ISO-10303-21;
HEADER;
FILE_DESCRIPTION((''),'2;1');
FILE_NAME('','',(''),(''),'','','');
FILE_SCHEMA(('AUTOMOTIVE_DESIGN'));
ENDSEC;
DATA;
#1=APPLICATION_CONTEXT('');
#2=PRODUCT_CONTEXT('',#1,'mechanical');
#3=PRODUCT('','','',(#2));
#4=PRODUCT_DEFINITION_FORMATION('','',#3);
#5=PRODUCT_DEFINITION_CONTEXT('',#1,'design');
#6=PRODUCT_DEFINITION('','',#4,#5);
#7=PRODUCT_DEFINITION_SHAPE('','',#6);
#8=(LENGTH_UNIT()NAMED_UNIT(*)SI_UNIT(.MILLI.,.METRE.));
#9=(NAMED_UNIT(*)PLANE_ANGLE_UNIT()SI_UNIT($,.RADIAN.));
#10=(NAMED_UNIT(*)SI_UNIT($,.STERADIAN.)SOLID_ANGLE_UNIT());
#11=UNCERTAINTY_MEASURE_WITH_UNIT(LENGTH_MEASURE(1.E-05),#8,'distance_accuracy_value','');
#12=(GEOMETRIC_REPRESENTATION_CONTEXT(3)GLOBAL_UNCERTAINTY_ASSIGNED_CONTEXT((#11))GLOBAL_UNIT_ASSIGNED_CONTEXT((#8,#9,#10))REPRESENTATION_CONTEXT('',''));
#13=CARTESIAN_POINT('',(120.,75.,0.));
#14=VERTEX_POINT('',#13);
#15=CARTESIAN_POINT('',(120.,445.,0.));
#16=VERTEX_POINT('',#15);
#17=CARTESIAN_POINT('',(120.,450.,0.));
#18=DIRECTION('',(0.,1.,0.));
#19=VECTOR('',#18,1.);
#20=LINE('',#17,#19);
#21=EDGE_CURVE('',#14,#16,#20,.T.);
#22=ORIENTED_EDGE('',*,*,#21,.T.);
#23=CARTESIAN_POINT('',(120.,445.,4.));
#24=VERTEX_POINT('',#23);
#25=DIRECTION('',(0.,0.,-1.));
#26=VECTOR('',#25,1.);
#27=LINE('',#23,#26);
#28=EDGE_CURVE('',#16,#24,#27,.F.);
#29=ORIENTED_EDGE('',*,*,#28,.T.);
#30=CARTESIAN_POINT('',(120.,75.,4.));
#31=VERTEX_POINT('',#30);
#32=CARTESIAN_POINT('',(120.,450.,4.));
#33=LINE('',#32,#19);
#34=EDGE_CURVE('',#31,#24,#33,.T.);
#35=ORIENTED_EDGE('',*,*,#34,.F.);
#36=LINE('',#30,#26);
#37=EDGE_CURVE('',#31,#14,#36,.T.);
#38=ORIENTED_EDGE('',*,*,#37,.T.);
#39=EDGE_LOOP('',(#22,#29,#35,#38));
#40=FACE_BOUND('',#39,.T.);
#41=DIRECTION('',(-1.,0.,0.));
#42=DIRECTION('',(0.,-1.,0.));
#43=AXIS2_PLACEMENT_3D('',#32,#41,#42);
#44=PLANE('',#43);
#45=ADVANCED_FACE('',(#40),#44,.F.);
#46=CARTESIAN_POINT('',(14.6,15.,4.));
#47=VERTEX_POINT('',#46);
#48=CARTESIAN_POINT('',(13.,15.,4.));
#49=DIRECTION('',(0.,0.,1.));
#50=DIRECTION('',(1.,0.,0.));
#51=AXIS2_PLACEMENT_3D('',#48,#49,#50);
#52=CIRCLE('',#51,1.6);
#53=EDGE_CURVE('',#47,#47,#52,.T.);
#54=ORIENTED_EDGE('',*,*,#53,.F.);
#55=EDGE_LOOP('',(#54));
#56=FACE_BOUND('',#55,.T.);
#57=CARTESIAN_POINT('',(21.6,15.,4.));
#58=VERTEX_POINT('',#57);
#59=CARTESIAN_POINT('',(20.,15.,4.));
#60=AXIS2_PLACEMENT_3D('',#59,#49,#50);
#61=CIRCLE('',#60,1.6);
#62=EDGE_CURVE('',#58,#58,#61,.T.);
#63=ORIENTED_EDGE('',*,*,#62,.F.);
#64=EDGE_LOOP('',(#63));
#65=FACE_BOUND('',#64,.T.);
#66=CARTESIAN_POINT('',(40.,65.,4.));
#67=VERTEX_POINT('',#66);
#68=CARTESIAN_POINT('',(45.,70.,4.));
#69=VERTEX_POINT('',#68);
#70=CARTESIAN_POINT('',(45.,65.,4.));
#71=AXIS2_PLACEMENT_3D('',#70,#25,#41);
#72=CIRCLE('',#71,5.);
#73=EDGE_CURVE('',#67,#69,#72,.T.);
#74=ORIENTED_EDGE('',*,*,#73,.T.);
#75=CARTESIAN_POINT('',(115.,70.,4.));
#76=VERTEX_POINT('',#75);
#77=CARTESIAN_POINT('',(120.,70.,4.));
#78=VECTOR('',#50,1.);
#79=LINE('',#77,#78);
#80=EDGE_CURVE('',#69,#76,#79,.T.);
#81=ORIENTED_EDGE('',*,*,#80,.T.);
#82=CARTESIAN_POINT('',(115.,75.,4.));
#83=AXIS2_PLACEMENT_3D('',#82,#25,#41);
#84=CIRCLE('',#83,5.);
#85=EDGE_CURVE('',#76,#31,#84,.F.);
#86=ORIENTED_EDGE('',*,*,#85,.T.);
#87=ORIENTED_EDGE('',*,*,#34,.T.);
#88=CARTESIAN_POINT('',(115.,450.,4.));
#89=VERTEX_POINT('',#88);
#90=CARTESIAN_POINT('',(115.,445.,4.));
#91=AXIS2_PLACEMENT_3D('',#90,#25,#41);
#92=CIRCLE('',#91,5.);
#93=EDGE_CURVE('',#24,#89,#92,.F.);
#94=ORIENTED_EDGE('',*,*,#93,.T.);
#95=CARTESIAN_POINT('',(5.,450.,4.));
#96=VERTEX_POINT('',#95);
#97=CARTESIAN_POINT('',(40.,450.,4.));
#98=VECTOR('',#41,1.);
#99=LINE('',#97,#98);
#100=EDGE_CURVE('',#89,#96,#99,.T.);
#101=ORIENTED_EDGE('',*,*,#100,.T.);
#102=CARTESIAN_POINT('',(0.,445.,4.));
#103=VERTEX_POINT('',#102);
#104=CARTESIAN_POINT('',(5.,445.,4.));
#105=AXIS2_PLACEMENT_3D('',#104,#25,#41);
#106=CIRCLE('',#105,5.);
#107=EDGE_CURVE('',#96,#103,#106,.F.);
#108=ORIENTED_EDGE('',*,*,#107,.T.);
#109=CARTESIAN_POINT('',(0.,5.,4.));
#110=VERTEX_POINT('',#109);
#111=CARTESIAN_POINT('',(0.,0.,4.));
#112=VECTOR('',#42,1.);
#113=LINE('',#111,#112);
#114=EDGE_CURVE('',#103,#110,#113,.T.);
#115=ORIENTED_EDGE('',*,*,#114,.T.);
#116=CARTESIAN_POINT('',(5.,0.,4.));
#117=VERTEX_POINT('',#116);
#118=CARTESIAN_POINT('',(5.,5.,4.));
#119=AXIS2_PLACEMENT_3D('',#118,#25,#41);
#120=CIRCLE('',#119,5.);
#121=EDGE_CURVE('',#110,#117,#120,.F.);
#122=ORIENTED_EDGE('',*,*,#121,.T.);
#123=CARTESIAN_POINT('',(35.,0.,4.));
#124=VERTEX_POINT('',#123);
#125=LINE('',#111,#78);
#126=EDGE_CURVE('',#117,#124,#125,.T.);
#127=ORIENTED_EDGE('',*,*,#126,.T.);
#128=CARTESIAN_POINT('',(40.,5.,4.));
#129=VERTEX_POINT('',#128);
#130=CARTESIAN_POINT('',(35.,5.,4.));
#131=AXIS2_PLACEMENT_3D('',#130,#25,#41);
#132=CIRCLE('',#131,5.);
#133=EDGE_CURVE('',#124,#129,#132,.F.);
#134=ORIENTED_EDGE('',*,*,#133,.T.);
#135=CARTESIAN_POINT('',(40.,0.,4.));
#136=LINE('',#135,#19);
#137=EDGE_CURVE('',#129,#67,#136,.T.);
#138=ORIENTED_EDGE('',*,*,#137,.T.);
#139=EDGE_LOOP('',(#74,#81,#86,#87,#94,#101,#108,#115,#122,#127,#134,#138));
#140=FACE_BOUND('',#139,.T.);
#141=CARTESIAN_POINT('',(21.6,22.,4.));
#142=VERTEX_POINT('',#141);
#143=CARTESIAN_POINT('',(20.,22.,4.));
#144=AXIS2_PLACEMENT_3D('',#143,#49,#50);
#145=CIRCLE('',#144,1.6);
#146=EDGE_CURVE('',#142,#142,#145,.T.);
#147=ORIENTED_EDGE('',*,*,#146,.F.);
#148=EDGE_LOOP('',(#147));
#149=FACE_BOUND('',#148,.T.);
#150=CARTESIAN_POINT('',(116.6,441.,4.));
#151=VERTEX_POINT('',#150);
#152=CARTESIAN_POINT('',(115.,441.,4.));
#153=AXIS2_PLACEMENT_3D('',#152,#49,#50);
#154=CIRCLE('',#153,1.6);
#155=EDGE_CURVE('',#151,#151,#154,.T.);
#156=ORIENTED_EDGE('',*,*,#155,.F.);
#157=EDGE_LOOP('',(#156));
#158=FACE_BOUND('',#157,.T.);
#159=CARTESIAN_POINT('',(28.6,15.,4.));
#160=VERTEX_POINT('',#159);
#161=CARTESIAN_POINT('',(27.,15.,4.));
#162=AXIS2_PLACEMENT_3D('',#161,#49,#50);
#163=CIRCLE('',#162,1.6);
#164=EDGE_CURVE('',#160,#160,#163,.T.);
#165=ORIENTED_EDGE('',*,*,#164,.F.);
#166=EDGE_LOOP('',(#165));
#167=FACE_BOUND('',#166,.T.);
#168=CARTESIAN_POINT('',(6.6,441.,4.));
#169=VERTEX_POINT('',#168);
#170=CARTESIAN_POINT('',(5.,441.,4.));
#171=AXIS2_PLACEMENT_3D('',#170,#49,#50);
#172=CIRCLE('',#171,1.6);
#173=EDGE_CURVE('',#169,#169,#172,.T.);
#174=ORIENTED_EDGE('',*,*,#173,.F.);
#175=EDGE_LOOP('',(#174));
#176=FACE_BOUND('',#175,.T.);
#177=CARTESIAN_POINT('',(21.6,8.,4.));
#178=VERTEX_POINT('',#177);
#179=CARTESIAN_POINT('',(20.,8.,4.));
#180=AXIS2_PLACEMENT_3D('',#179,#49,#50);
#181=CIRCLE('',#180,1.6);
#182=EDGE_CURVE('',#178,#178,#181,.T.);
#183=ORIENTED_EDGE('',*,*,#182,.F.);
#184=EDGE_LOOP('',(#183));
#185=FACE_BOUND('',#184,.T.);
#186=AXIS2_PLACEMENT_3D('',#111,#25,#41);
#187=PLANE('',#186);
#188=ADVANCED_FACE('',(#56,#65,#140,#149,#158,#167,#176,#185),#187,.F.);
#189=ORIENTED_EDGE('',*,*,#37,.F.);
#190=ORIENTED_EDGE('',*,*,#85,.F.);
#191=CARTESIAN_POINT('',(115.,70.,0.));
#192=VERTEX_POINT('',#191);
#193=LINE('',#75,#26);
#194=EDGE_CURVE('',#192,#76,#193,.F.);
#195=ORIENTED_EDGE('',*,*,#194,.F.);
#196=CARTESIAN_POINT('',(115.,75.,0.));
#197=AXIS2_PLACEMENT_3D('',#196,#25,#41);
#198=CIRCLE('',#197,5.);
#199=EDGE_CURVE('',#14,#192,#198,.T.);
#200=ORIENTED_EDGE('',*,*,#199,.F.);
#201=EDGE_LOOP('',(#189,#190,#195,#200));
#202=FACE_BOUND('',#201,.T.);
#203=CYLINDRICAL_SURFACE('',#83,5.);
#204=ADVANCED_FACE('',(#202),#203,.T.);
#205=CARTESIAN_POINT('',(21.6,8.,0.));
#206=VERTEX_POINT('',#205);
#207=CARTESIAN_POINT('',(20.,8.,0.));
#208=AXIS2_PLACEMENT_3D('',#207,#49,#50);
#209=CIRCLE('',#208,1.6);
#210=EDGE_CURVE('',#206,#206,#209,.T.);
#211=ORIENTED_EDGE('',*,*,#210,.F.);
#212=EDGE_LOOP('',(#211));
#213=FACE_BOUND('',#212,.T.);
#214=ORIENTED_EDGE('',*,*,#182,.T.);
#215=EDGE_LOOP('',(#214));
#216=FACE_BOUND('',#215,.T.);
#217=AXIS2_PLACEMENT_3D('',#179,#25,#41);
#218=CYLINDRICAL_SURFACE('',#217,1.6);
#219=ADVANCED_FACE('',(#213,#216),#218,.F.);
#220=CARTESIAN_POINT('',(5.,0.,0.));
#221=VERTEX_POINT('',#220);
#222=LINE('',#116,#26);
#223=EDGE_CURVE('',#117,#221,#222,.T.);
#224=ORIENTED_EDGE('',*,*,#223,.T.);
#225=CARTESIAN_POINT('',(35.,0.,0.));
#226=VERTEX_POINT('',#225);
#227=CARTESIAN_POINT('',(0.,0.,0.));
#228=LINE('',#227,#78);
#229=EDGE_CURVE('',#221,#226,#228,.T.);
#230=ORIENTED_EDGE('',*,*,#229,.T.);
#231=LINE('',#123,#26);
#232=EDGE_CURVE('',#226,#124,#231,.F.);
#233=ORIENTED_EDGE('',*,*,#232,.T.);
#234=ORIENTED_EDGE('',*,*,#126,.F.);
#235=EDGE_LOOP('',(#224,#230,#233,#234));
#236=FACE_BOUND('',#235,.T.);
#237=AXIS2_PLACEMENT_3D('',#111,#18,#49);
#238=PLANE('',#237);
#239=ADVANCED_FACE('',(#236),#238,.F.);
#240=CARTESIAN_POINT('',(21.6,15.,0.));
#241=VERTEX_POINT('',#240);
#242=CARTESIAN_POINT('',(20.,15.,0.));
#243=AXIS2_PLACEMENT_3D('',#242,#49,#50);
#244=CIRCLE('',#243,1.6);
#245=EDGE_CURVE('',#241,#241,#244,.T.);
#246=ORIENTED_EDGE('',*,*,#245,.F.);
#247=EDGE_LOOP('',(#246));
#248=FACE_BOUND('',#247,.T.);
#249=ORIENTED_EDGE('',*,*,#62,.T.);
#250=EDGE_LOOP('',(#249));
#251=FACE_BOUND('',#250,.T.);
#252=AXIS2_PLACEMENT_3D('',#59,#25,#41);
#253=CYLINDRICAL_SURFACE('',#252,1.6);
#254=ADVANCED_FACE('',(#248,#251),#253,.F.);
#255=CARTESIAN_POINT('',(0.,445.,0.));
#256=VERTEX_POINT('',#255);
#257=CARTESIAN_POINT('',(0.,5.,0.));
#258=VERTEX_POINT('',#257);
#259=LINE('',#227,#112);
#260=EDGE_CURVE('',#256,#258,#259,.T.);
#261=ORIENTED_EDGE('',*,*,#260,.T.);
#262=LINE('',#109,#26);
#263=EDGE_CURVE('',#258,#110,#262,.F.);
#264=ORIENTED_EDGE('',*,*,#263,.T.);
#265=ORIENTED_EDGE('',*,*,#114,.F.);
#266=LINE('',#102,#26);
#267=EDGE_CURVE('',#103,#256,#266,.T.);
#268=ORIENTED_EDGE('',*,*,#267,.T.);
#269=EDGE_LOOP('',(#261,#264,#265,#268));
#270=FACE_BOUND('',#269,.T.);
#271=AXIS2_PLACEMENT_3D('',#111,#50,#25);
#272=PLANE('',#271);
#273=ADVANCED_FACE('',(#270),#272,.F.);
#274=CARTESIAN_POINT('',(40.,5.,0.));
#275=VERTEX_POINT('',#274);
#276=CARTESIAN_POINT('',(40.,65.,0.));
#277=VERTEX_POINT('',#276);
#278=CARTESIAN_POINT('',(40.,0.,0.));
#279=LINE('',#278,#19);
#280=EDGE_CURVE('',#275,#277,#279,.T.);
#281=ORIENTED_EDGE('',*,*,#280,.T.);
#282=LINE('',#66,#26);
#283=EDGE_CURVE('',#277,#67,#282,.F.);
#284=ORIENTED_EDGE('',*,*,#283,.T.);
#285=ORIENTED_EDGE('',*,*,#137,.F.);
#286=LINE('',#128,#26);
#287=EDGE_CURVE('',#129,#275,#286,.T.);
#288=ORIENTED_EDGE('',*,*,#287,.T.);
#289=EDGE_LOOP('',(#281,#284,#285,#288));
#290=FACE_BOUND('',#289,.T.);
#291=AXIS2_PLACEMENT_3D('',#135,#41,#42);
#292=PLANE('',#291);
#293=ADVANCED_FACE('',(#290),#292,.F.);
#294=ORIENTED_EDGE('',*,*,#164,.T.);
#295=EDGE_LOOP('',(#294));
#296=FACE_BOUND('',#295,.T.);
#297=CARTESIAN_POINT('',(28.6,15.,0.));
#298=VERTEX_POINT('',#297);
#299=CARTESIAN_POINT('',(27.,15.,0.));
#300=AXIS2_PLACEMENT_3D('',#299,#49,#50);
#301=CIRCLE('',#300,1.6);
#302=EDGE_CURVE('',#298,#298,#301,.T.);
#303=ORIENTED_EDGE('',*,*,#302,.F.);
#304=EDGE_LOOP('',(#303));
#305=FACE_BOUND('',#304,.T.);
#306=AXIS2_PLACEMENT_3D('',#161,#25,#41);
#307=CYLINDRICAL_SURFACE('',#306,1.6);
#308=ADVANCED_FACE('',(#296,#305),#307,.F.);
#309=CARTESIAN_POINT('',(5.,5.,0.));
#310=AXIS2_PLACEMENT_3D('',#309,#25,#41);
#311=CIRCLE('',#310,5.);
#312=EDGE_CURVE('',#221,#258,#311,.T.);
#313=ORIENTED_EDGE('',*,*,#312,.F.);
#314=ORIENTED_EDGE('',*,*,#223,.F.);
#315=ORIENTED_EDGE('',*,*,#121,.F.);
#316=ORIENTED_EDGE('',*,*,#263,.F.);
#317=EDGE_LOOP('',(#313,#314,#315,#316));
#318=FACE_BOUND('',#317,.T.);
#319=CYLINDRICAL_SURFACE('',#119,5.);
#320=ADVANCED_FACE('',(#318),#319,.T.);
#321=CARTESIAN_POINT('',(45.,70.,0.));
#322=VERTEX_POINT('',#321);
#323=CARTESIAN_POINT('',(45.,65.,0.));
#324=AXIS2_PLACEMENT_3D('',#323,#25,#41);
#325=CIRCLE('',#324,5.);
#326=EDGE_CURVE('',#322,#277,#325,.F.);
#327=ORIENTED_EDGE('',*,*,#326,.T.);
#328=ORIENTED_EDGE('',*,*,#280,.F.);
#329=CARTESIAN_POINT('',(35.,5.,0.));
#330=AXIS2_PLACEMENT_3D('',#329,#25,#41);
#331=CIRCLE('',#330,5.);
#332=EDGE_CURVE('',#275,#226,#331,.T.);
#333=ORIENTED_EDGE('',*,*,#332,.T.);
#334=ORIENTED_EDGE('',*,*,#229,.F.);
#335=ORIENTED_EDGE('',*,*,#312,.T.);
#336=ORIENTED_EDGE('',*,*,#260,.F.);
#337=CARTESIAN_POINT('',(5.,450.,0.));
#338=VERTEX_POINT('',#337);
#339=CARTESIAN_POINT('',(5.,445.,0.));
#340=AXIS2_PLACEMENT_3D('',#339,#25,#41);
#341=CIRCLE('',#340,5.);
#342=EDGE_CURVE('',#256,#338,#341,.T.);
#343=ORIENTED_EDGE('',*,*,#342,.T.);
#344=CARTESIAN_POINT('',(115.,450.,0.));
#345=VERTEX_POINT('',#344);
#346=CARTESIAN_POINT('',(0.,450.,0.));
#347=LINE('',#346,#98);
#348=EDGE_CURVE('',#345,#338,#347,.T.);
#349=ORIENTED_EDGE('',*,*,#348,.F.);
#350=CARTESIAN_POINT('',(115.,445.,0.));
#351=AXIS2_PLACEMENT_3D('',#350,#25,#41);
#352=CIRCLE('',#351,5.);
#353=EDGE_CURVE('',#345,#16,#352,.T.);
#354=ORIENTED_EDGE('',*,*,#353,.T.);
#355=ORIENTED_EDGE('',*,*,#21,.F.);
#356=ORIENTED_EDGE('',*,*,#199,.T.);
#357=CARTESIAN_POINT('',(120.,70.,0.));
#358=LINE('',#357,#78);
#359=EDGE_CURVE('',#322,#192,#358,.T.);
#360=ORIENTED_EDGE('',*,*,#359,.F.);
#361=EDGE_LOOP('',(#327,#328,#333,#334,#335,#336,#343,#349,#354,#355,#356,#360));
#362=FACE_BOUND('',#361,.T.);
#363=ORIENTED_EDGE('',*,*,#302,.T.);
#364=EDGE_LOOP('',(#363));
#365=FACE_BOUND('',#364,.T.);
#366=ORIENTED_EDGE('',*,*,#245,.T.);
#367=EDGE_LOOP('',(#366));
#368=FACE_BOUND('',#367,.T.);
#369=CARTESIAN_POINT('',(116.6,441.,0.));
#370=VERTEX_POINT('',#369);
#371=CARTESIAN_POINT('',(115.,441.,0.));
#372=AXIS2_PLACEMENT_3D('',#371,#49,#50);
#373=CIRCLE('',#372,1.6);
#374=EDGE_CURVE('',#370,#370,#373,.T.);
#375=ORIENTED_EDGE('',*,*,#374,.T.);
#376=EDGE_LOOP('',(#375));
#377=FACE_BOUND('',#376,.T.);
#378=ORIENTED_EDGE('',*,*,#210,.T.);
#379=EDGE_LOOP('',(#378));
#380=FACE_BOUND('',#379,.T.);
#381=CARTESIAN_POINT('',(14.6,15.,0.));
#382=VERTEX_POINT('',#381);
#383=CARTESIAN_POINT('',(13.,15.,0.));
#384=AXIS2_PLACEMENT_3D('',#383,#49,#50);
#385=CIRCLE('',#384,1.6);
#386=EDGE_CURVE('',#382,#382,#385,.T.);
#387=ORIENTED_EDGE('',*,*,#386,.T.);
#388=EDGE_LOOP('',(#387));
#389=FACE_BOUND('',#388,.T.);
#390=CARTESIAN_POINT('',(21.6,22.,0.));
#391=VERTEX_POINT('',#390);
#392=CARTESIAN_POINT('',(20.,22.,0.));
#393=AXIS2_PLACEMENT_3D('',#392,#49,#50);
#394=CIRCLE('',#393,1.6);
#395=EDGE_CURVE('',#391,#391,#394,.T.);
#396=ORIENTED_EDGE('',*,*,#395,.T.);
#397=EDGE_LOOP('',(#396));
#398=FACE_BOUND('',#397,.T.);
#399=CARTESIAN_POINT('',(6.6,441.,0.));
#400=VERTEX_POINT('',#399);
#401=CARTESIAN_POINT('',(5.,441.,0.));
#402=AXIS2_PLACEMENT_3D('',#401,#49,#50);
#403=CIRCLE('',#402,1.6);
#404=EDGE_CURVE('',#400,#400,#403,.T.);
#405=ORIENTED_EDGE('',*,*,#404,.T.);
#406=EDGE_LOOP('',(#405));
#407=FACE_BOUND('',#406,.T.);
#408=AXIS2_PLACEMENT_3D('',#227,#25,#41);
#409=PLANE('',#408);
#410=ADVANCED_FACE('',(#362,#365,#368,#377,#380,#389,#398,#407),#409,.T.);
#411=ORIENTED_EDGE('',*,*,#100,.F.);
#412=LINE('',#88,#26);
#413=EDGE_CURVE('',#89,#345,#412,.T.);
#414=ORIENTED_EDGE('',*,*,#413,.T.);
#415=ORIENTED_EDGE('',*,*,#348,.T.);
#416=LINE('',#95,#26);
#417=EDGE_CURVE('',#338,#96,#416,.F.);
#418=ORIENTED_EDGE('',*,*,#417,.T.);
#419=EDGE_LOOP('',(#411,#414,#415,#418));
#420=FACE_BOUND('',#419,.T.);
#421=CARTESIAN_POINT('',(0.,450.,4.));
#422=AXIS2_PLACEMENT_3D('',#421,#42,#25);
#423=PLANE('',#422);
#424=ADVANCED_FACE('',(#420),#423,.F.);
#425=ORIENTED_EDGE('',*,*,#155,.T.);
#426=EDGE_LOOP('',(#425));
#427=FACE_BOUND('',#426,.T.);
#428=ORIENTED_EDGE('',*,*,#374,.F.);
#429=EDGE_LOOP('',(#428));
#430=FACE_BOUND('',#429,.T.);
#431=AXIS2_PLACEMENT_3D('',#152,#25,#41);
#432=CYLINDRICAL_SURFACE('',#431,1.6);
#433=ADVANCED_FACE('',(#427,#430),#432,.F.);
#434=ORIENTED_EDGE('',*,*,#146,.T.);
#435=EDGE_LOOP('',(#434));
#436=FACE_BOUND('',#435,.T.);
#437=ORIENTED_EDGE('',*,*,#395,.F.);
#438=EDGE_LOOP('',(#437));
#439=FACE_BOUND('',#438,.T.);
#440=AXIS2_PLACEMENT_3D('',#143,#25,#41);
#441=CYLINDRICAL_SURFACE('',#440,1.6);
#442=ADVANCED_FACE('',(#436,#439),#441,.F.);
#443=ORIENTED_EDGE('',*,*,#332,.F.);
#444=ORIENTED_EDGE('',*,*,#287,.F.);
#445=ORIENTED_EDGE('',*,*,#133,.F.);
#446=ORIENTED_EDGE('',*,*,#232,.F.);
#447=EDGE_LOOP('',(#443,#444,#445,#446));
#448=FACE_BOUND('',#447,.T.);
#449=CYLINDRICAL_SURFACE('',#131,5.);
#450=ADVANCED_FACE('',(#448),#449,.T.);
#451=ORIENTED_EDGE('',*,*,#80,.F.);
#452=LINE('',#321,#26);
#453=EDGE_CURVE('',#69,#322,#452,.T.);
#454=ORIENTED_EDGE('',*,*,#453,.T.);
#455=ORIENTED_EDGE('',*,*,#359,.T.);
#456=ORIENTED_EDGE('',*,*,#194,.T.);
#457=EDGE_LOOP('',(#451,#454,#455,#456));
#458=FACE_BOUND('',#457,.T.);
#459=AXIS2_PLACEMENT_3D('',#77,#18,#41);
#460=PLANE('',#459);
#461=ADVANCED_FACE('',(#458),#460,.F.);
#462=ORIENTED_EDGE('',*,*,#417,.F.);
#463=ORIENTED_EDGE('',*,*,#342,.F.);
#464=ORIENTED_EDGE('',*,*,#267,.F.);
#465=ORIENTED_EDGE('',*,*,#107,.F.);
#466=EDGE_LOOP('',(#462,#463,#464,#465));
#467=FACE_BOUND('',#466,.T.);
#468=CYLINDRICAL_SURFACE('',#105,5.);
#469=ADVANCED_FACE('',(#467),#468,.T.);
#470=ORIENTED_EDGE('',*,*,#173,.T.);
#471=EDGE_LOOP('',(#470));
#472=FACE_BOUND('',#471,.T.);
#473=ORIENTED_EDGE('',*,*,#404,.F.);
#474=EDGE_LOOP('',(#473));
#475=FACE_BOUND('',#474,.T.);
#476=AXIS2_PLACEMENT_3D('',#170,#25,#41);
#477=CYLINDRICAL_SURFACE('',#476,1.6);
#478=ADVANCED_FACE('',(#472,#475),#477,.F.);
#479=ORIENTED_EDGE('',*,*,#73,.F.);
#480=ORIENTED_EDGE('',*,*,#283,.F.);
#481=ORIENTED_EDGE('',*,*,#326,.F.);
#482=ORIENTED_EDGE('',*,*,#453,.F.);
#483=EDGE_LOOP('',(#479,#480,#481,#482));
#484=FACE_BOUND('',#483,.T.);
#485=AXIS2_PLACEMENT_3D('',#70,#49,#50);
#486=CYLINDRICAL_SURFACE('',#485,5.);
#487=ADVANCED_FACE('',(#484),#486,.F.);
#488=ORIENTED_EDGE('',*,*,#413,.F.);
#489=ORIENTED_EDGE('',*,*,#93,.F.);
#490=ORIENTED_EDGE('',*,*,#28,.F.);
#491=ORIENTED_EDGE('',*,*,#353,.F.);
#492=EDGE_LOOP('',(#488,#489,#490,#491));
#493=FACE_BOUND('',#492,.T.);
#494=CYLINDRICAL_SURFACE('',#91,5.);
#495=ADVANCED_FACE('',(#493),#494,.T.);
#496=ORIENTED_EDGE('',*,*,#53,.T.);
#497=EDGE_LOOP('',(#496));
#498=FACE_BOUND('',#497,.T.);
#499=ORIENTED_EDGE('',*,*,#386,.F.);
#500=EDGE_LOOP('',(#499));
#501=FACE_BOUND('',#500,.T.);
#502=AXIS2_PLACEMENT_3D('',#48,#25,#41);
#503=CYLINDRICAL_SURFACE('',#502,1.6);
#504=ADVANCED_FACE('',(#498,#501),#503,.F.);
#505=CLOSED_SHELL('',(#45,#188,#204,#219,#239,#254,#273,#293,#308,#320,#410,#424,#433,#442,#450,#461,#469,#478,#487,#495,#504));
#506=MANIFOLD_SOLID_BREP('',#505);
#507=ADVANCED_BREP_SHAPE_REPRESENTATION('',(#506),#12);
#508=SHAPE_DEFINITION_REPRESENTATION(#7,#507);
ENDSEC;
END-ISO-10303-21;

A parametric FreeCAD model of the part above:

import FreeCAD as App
import Part
import Sketcher


def edges_at(feature, points):
    """Names of the edges that pass closest to the given points."""
    edges = feature.Shape.Edges
    near = lambda p: min(range(len(edges)), key=lambda i: edges[i].distToShape(Part.Vertex(*p))[0])
    return sorted({f"Edge{near(p) + 1}" for p in points})


def add_polygon(sketch, points):
    """Adds a closed chain of lines whose ends are joined by coincident constraints."""
    first, n = sketch.GeometryCount, len(points)
    for a, b in zip(points, points[1:] + points[:1]):
        sketch.addGeometry(Part.LineSegment(App.Vector(*a, 0), App.Vector(*b, 0)), False)
    for i in range(n):
        sketch.addConstraint(Sketcher.Constraint("Coincident", first + i, 2, first + (i + 1) % n, 1))

doc = App.newDocument("Part")
body = doc.addObject("PartDesign::Body", "Body")

# Sketch on XY plane
sketch1 = body.newObject("Sketcher::SketchObject", "Sketch")
sketch1.AttachmentSupport = (doc.getObject("XY_Plane"), [""])
sketch1.MapMode = "FlatFace"
add_polygon(sketch1, [(0, 0), (40, 0), (40, 70), (120, 70), (120, 450), (0, 450)])  # lines 0-5
sketch1.addGeometry(Part.Circle(App.Vector(13, 15, 0), App.Vector(0, 0, 1), 1.6), False)  # 6
sketch1.addGeometry(Part.Circle(App.Vector(20, 8, 0), App.Vector(0, 0, 1), 1.6), False)  # 7
sketch1.addGeometry(Part.Circle(App.Vector(20, 15, 0), App.Vector(0, 0, 1), 1.6), False)  # 8
sketch1.addGeometry(Part.Circle(App.Vector(20, 22, 0), App.Vector(0, 0, 1), 1.6), False)  # 9
sketch1.addGeometry(Part.Circle(App.Vector(27, 15, 0), App.Vector(0, 0, 1), 1.6), False)  # 10
sketch1.addGeometry(Part.Circle(App.Vector(5, 441, 0), App.Vector(0, 0, 1), 1.6), False)  # 11
sketch1.addGeometry(Part.Circle(App.Vector(115, 441, 0), App.Vector(0, 0, 1), 1.6), False)  # 12
sketch1.addConstraint([
    Sketcher.Constraint("Horizontal", 0),
    Sketcher.Constraint("Vertical", 1),
    Sketcher.Constraint("Horizontal", 2),
    Sketcher.Constraint("Vertical", 3),
    Sketcher.Constraint("Horizontal", 4),
    Sketcher.Constraint("Vertical", 5),
    Sketcher.Constraint("Coincident", 5, 2, -1, 1),
    Sketcher.Constraint("Equal", 6, 7),
    Sketcher.Constraint("Equal", 7, 8),
    Sketcher.Constraint("Equal", 8, 9),
    Sketcher.Constraint("Equal", 9, 10),
    Sketcher.Constraint("Equal", 10, 11),
    Sketcher.Constraint("Equal", 11, 12),
    Sketcher.Constraint("Horizontal", 6, 3, 8, 3),
    Sketcher.Constraint("Horizontal", 8, 3, 10, 3),
    Sketcher.Constraint("Horizontal", 11, 3, 12, 3),
    Sketcher.Constraint("Vertical", 7, 3, 8, 3),
    Sketcher.Constraint("Vertical", 8, 3, 9, 3),
    Sketcher.Constraint("Diameter", 6, 3.2),
    Sketcher.Constraint("DistanceX", 0, 1, 0, 2, 40.0),
    Sketcher.Constraint("DistanceX", 2, 1, 2, 2, 80.0),
    Sketcher.Constraint("DistanceY", 1, 1, 1, 2, 70.0),
    Sketcher.Constraint("DistanceY", 3, 1, 3, 2, 380.0),
    Sketcher.Constraint("DistanceX", -1, 1, 6, 3, 13.0),
    Sketcher.Constraint("DistanceY", -1, 1, 6, 3, 15.0),
    Sketcher.Constraint("DistanceX", -1, 1, 7, 3, 20.0),
    Sketcher.Constraint("DistanceY", -1, 1, 7, 3, 8.0),
    Sketcher.Constraint("DistanceY", -1, 1, 9, 3, 22.0),
    Sketcher.Constraint("DistanceX", -1, 1, 10, 3, 27.0),
    Sketcher.Constraint("DistanceX", -1, 1, 11, 3, 5.0),
    Sketcher.Constraint("DistanceY", -1, 1, 11, 3, 441.0),
    Sketcher.Constraint("DistanceX", -1, 1, 12, 3, 115.0),
])
pad1 = body.newObject("PartDesign::Pad", "Pad")
pad1.Profile = sketch1
pad1.Length = 4
doc.recompute()

fillet = body.newObject("PartDesign::Fillet", "Fillet")
fillet.Base = (pad1, edges_at(pad1, [
    (0, 450, 2),
    (120, 450, 2),
    (120, 70, 2),
    (40, 70, 2),
    (40, 0, 2),
    (0, 0, 2),
]))
fillet.Radius = 5

doc.recompute()
